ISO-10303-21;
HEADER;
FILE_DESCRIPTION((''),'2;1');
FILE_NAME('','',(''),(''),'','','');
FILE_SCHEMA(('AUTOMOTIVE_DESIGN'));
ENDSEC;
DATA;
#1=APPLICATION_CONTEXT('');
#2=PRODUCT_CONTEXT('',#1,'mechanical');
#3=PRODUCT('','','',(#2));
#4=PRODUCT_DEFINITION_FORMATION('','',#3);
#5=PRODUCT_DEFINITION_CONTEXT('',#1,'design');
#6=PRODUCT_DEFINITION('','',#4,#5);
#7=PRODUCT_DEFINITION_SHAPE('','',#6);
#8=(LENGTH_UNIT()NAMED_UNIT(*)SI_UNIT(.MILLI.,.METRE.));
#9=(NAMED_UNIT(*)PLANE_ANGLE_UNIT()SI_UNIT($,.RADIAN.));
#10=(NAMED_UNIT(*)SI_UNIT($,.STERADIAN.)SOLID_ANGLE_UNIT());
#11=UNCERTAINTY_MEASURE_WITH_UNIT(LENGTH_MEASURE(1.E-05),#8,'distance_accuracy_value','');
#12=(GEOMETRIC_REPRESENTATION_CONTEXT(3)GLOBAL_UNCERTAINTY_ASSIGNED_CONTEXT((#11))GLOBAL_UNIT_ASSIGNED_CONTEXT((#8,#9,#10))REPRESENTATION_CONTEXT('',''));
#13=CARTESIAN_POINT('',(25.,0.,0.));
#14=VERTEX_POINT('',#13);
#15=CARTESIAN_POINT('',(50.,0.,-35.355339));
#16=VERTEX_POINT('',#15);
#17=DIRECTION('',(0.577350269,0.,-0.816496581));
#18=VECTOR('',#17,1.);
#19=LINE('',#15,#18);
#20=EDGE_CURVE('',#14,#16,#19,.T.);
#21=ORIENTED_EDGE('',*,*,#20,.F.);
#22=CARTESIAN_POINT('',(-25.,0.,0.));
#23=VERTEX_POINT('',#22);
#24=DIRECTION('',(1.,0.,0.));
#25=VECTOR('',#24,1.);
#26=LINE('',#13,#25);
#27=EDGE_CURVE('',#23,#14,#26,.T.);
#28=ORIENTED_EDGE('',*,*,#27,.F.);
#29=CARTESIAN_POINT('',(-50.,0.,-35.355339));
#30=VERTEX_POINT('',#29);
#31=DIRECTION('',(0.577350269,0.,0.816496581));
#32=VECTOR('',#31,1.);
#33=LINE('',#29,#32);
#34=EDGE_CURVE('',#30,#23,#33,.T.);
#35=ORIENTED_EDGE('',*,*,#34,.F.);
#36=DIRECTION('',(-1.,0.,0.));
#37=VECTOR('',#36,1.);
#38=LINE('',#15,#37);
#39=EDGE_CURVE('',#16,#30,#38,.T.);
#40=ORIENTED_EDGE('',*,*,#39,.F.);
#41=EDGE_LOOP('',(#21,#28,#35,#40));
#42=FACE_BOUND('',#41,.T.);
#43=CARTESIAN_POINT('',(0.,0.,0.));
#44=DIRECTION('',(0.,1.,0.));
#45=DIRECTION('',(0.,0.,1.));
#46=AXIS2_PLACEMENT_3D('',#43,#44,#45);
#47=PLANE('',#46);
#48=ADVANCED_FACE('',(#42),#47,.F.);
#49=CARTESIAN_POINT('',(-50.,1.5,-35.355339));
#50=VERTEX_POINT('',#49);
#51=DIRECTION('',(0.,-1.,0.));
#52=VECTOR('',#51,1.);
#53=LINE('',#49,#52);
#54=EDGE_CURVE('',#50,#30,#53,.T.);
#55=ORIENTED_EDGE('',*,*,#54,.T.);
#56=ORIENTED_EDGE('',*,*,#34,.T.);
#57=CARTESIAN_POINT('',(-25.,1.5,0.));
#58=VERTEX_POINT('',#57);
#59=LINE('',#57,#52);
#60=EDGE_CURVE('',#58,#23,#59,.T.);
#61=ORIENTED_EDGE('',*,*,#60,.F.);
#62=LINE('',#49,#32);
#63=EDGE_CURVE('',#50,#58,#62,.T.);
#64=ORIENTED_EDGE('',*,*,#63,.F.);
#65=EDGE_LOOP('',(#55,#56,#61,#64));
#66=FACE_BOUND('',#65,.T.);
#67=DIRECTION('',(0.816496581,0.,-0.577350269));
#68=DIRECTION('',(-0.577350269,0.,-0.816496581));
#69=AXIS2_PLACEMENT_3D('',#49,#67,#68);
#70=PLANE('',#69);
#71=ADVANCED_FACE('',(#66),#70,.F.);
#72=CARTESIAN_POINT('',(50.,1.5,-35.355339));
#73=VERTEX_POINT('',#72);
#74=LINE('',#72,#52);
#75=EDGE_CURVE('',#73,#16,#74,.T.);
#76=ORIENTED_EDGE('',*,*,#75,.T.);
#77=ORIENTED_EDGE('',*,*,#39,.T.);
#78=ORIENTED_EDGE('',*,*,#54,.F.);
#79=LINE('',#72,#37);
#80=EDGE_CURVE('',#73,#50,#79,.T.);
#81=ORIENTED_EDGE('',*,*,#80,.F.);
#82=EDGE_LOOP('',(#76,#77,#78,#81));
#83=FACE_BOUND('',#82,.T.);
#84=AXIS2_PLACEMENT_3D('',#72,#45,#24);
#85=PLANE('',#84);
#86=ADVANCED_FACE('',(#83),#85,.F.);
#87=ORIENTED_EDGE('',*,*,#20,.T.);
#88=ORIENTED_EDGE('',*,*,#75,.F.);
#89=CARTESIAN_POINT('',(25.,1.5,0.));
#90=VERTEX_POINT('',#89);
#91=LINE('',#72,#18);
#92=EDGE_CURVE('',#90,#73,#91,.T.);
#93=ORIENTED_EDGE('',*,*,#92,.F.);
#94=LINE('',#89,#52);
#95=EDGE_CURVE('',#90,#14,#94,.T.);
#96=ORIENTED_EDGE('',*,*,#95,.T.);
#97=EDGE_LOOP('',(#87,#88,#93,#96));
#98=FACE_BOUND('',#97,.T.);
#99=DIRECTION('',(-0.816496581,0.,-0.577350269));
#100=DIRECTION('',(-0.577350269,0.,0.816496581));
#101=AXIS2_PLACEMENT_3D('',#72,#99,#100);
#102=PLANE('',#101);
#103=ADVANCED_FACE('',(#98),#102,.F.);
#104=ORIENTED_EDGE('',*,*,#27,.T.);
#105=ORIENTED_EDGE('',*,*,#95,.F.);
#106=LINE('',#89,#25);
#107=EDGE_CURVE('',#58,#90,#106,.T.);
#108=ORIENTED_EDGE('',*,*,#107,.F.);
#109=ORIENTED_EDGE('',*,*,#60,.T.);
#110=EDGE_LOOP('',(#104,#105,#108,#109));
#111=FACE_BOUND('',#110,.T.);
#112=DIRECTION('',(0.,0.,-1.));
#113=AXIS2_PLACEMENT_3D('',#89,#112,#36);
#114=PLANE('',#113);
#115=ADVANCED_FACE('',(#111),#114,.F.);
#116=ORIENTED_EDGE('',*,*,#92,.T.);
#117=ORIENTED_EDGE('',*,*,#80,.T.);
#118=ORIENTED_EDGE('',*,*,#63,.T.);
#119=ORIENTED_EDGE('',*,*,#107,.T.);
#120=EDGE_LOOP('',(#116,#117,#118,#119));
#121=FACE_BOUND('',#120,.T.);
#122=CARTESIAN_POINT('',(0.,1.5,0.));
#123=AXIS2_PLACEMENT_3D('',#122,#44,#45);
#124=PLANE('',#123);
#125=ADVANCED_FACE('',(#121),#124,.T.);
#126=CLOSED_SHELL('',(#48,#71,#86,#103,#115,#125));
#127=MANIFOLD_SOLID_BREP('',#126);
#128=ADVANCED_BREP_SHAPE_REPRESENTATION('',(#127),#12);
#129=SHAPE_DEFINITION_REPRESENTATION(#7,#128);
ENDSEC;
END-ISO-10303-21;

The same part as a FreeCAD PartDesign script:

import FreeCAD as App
import Part
import Sketcher
from FreeCAD import Vector
Q = App.Units.Quantity


def add_polygon(sketch, points):
    """Adds a closed chain of lines whose ends are joined by coincident constraints."""
    first, n = sketch.GeometryCount, len(points)
    for a, b in zip(points, points[1:] + points[:1]):
        sketch.addGeometry(Part.LineSegment(App.Vector(*a, 0), App.Vector(*b, 0)), False)
    for i in range(n):
        sketch.addConstraint(Sketcher.Constraint("Coincident", first + i, 2, first + (i + 1) % n, 1))

doc = App.newDocument("Part")
body = doc.addObject("PartDesign::Body", "Body")

# Sketch on XZ plane
sketch1 = doc.addObject("Sketcher::SketchObject", "Sketch")
body.addObject(sketch1)
sketch1.AttachmentSupport = (doc.XZ_Plane, [""])
sketch1.MapMode = "FlatFace"
add_polygon(sketch1, [(-50, -35), (-25, 0), (25, 0), (50, -35)])  # lines 0-3
sketch1.addConstraint(Sketcher.Constraint("Horizontal", 1))
sketch1.addConstraint(Sketcher.Constraint("Horizontal", 3))
sketch1.addConstraint(Sketcher.Constraint("Symmetric", 0, 2, 1, 2, -1, 1))
sketch1.addConstraint(Sketcher.Constraint("Equal", 0, 2))
sketch1.addConstraint(Sketcher.Constraint("DistanceX", 1, 1, 1, 2, Q("50 mm")))
sketch1.addConstraint(Sketcher.Constraint("DistanceX", 3, 2, 3, 1, Q("100 mm")))
sketch1.addConstraint(Sketcher.Constraint("Distance", 0, Q("43.30127 mm")))
pad1 = doc.addObject("PartDesign::Pad", "Pad")
body.addObject(pad1)
pad1.Profile = sketch1
pad1.Length = 1.5
pad1.Reversed = True

doc.recompute()
